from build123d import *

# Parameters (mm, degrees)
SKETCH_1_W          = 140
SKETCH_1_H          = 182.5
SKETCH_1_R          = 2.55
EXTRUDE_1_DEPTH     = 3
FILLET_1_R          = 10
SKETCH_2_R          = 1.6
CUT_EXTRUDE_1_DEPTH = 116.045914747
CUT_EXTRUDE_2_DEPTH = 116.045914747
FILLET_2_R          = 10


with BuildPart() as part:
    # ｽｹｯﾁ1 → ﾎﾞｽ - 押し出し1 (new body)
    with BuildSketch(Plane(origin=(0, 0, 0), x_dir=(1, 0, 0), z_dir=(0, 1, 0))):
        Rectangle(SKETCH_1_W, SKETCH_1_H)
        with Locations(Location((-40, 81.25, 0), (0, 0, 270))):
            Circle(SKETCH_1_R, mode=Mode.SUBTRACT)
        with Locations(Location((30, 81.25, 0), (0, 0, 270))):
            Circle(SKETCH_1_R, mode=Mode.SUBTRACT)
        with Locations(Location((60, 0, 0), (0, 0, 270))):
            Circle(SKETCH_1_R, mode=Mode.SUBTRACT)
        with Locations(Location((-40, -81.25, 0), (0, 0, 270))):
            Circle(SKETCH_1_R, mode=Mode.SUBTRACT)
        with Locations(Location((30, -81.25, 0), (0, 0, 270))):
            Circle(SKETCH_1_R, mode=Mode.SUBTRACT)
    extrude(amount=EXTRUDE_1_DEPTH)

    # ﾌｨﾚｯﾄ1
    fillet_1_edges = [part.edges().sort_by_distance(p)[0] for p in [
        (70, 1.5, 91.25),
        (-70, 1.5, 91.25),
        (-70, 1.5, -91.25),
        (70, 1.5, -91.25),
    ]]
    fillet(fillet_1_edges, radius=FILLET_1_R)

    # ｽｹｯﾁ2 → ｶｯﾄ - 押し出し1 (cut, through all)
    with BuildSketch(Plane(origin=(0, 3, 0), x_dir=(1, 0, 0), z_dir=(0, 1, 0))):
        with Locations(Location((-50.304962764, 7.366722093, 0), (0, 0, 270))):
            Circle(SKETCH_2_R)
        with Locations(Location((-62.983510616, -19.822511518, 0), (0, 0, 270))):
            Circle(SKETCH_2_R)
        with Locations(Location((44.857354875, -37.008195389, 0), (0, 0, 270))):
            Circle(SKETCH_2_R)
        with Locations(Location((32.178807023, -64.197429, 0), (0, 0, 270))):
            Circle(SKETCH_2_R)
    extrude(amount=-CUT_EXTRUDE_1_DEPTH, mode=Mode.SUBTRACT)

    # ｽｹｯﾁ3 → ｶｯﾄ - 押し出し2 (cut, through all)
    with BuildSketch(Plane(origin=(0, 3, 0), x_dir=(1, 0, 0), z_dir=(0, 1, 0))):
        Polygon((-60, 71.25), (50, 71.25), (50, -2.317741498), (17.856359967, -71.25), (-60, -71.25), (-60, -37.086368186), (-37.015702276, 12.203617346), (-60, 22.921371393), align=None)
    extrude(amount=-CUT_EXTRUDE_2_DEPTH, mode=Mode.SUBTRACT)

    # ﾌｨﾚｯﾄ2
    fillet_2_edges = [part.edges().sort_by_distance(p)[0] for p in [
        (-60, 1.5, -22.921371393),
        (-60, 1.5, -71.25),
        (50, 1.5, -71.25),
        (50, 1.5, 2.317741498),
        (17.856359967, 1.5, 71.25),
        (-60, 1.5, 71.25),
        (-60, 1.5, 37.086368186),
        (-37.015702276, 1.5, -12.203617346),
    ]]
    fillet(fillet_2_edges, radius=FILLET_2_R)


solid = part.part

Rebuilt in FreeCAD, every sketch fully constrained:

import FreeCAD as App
import Part
import Sketcher

V = App.Vector
Q = App.Units.Quantity


def edges_at(feature, points):
    """Names of the edges that pass closest to the given points."""
    edges = feature.Shape.Edges
    near = lambda p: min(range(len(edges)), key=lambda i: edges[i].distToShape(Part.Vertex(*p))[0])
    return sorted({f"Edge{near(p) + 1}" for p in points})

doc = App.newDocument("Part")
params = doc.addObject("Spreadsheet::Sheet", "Params")
for row, (alias, value) in enumerate([
    ("sketch1_diameter", "5.1 mm"),
    ("sketch1_width", "140 mm"),
    ("sketch1_height", "182.5 mm"),
    ("pad1_length", "3 mm"),
    ("fillet_radius", "10 mm"),
    ("sketch2_diameter", "3.2 mm"),
    ("sketch3_width", "110 mm"),
    ("fillet2_radius", "10 mm"),
], start=1):
    params.set(f"A{row}", alias)
    params.set(f"B{row}", "=" + value)
    params.setAlias(f"B{row}", alias)

body = doc.addObject("PartDesign::Body", "Body")

# Sketch on XZ plane
sketch1 = body.newObject("Sketcher::SketchObject", "Sketch")
sketch1.AttachmentSupport = (doc.getObject("XZ_Plane"), [""])
sketch1.MapMode = "FlatFace"
sketch1.addGeometry(Part.LineSegment(V(-70, -91.2, 0), V(-70, 91.2, 0)), False)
sketch1.addGeometry(Part.LineSegment(V(-70, 91.2, 0), V(70, 91.2, 0)), False)
sketch1.addGeometry(Part.LineSegment(V(70, 91.2, 0), V(70, -91.2, 0)), False)
sketch1.addGeometry(Part.LineSegment(V(70, -91.2, 0), V(-70, -91.2, 0)), False)
sketch1.addGeometry(Part.Circle(V(-40, 81.2, 0), V(0, 0, 1), 2.5), False)
sketch1.addGeometry(Part.Circle(V(30, 81.2, 0), V(0, 0, 1), 2.5), False)
sketch1.addGeometry(Part.Circle(V(60, 0, 0), V(0, 0, 1), 2.5), False)
sketch1.addGeometry(Part.Circle(V(-40, -81.2, 0), V(0, 0, 1), 2.5), False)
sketch1.addGeometry(Part.Circle(V(30, -81.2, 0), V(0, 0, 1), 2.5), False)
sketch1.addConstraint(Sketcher.Constraint("Coincident", 0, 2, 1, 1))
sketch1.addConstraint(Sketcher.Constraint("Coincident", 1, 2, 2, 1))
sketch1.addConstraint(Sketcher.Constraint("Coincident", 2, 2, 3, 1))
sketch1.addConstraint(Sketcher.Constraint("Coincident", 3, 2, 0, 1))
sketch1.addConstraint(Sketcher.Constraint("Vertical", 0))
sketch1.addConstraint(Sketcher.Constraint("Horizontal", 1))
sketch1.addConstraint(Sketcher.Constraint("Vertical", 2))
sketch1.addConstraint(Sketcher.Constraint("Horizontal", 3))
sketch1.addConstraint(Sketcher.Constraint("Equal", 4, 5))
sketch1.addConstraint(Sketcher.Constraint("Equal", 5, 6))
sketch1.addConstraint(Sketcher.Constraint("Equal", 6, 7))
sketch1.addConstraint(Sketcher.Constraint("Equal", 7, 8))
sketch1.addConstraint(Sketcher.Constraint("Symmetric", 0, 2, 2, 2, -1, 1))
sketch1.addConstraint(Sketcher.Constraint("Symmetric", 4, 3, 7, 3, -1))
sketch1.addConstraint(Sketcher.Constraint("Symmetric", 5, 3, 8, 3, -1))
sketch1.addConstraint(Sketcher.Constraint("PointOnObject", 6, 3, -1))
sketch1.addConstraint(Sketcher.Constraint("Horizontal", 4, 3, 5, 3))
sketch1.addConstraint(Sketcher.Constraint("Diameter", 4, 5.1))
sketch1.addConstraint(Sketcher.Constraint("DistanceX", 1, 1, 1, 2, 140.0))
sketch1.addConstraint(Sketcher.Constraint("DistanceY", 0, 1, 0, 2, 182.5))
sketch1.addConstraint(Sketcher.Constraint("DistanceX", 4, 3, -1, 1, 40.0))
sketch1.addConstraint(Sketcher.Constraint("DistanceX", -1, 1, 5, 3, 30.0))
sketch1.addConstraint(Sketcher.Constraint("DistanceX", -1, 1, 6, 3, 60.0))
sketch1.addConstraint(Sketcher.Constraint("DistanceY", 4, 3, 0, 2, 10.0))
sketch1.setExpression("Constraints[17]", "Params.sketch1_diameter")
sketch1.setExpression("Constraints[18]", "Params.sketch1_width")
sketch1.setExpression("Constraints[19]", "Params.sketch1_height")
pad1 = body.newObject("PartDesign::Pad", "Pad")
pad1.Profile = sketch1
pad1.setExpression("Length", "Params.pad1_length")
pad1.Reversed = True
doc.recompute()

fillet = body.newObject("PartDesign::Fillet", "Fillet")
fillet.Base = (pad1, edges_at(pad1, [
    (70, 1.5, 91.25),
    (-70, 1.5, 91.25),
    (-70, 1.5, -91.25),
    (70, 1.5, -91.25),
]))
fillet.setExpression("Radius", "Params.fillet_radius")

# Sketch on XZ plane
sketch2 = body.newObject("Sketcher::SketchObject", "Sketch001")
sketch2.AttachmentSupport = (doc.getObject("XZ_Plane"), [""])
sketch2.MapMode = "FlatFace"
sketch2.AttachmentOffset = App.Placement(V(0, 0, -3), App.Rotation())
sketch2.addGeometry(Part.Circle(V(-50.3, -7.4, 0), V(0, 0, 1), 1.6), False)
sketch2.addGeometry(Part.Circle(V(-63, 19.8, 0), V(0, 0, 1), 1.6), False)
sketch2.addGeometry(Part.Circle(V(44.9, 37, 0), V(0, 0, 1), 1.6), False)
sketch2.addGeometry(Part.Circle(V(32.2, 64.2, 0), V(0, 0, 1), 1.6), False)
sketch2.addConstraint(Sketcher.Constraint("Equal", 0, 1))
sketch2.addConstraint(Sketcher.Constraint("Equal", 1, 2))
sketch2.addConstraint(Sketcher.Constraint("Equal", 2, 3))
sketch2.addConstraint(Sketcher.Constraint("Diameter", 0, 3.2))
sketch2.addConstraint(Sketcher.Constraint("DistanceX", 1, 3, -1, 1, 62.983511))
sketch2.addConstraint(Sketcher.Constraint("DistanceY", -1, 1, 1, 3, 19.822512))
sketch2.addConstraint(Sketcher.Constraint("DistanceY", -1, 1, 3, 3, 64.197429))
sketch2.addConstraint(Sketcher.Constraint("DistanceX", 0, 3, 3, 3, 82.48377))
sketch2.addConstraint(Sketcher.Constraint("DistanceY", 0, 3, 3, 3, 71.564151))
sketch2.addConstraint(Sketcher.Constraint("DistanceX", 0, 3, -1, 1, 50.304963))
sketch2.addConstraint(Sketcher.Constraint("DistanceX", -1, 1, 2, 3, 44.857355))
sketch2.addConstraint(Sketcher.Constraint("DistanceY", -1, 1, 2, 3, 37.008195))
sketch2.setExpression("Constraints[3]", "Params.sketch2_diameter")
pocket1 = body.newObject("PartDesign::Pocket", "Pocket")
pocket1.Profile = sketch2
pocket1.Type = "ThroughAll"
pocket1.Reversed = True

# Sketch on XZ plane
sketch3 = body.newObject("Sketcher::SketchObject", "Sketch002")
sketch3.AttachmentSupport = (doc.getObject("XZ_Plane"), [""])
sketch3.MapMode = "FlatFace"
sketch3.AttachmentOffset = App.Placement(V(0, 0, -3), App.Rotation())
sketch3.addGeometry(Part.LineSegment(V(50, -71, 0), V(-60, -71, 0)), False)
sketch3.addGeometry(Part.LineSegment(V(-60, -71, 0), V(-60, -23, 0)), False)
sketch3.addGeometry(Part.LineSegment(V(-60, -23, 0), V(-37, -12, 0)), False)
sketch3.addGeometry(Part.LineSegment(V(-37, -12, 0), V(-60, 37, 0)), False)
sketch3.addGeometry(Part.LineSegment(V(-60, 37, 0), V(-60, 71, 0)), False)
sketch3.addGeometry(Part.LineSegment(V(-60, 71, 0), V(18, 71, 0)), False)
sketch3.addGeometry(Part.LineSegment(V(18, 71, 0), V(50, 2, 0)), False)
sketch3.addGeometry(Part.LineSegment(V(50, 2, 0), V(50, -71, 0)), False)
sketch3.addConstraint(Sketcher.Constraint("Coincident", 0, 2, 1, 1))
sketch3.addConstraint(Sketcher.Constraint("Coincident", 1, 2, 2, 1))
sketch3.addConstraint(Sketcher.Constraint("Coincident", 2, 2, 3, 1))
sketch3.addConstraint(Sketcher.Constraint("Coincident", 3, 2, 4, 1))
sketch3.addConstraint(Sketcher.Constraint("Coincident", 4, 2, 5, 1))
sketch3.addConstraint(Sketcher.Constraint("Coincident", 5, 2, 6, 1))
sketch3.addConstraint(Sketcher.Constraint("Coincident", 6, 2, 7, 1))
sketch3.addConstraint(Sketcher.Constraint("Coincident", 7, 2, 0, 1))
sketch3.addConstraint(Sketcher.Constraint("Horizontal", 0))
sketch3.addConstraint(Sketcher.Constraint("Vertical", 1))
sketch3.addConstraint(Sketcher.Constraint("Vertical", 4))
sketch3.addConstraint(Sketcher.Constraint("Horizontal", 5))
sketch3.addConstraint(Sketcher.Constraint("Vertical", 7))
sketch3.addConstraint(Sketcher.Constraint("Symmetric", 0, 2, 4, 2, -1))
sketch3.addConstraint(Sketcher.Constraint("Perpendicular", 2, 3))
sketch3.addConstraint(Sketcher.Constraint("Parallel", 3, 6))
sketch3.addConstraint(Sketcher.Constraint("DistanceX", 0, 2, 0, 1, 110.0))
sketch3.addConstraint(Sketcher.Constraint("Angle", 2, Q("25 deg")))
sketch3.addConstraint(Sketcher.Constraint("DistanceX", 0, 2, -1, 1, 60.0))
sketch3.addConstraint(Sketcher.Constraint("DistanceY", 0, 2, 4, 2, 142.5))
sketch3.addConstraint(Sketcher.Constraint("DistanceX", 5, 1, 5, 2, 77.85636))
sketch3.addConstraint(Sketcher.Constraint("DistanceY", 1, 1, 1, 2, 48.328629))
sketch3.addConstraint(Sketcher.Constraint("DistanceY", 4, 1, 4, 2, 34.163632))
sketch3.setExpression("Constraints[16]", "Params.sketch3_width")
pocket2 = body.newObject("PartDesign::Pocket", "Pocket001")
pocket2.Profile = sketch3
pocket2.Type = "ThroughAll"
pocket2.Reversed = True
doc.recompute()

fillet2 = body.newObject("PartDesign::Fillet", "Fillet001")
fillet2.Base = (pocket2, edges_at(pocket2, [
    (-60, 1.5, -22.921),
    (-60, 1.5, -71.25),
    (50, 1.5, -71.25),
    (50, 1.5, 2.318),
    (17.856, 1.5, 71.25),
    (-60, 1.5, 71.25),
    (-60, 1.5, 37.086),
    (-37.016, 1.5, -12.204),
]))
fillet2.setExpression("Radius", "Params.fillet2_radius")

doc.recompute()
